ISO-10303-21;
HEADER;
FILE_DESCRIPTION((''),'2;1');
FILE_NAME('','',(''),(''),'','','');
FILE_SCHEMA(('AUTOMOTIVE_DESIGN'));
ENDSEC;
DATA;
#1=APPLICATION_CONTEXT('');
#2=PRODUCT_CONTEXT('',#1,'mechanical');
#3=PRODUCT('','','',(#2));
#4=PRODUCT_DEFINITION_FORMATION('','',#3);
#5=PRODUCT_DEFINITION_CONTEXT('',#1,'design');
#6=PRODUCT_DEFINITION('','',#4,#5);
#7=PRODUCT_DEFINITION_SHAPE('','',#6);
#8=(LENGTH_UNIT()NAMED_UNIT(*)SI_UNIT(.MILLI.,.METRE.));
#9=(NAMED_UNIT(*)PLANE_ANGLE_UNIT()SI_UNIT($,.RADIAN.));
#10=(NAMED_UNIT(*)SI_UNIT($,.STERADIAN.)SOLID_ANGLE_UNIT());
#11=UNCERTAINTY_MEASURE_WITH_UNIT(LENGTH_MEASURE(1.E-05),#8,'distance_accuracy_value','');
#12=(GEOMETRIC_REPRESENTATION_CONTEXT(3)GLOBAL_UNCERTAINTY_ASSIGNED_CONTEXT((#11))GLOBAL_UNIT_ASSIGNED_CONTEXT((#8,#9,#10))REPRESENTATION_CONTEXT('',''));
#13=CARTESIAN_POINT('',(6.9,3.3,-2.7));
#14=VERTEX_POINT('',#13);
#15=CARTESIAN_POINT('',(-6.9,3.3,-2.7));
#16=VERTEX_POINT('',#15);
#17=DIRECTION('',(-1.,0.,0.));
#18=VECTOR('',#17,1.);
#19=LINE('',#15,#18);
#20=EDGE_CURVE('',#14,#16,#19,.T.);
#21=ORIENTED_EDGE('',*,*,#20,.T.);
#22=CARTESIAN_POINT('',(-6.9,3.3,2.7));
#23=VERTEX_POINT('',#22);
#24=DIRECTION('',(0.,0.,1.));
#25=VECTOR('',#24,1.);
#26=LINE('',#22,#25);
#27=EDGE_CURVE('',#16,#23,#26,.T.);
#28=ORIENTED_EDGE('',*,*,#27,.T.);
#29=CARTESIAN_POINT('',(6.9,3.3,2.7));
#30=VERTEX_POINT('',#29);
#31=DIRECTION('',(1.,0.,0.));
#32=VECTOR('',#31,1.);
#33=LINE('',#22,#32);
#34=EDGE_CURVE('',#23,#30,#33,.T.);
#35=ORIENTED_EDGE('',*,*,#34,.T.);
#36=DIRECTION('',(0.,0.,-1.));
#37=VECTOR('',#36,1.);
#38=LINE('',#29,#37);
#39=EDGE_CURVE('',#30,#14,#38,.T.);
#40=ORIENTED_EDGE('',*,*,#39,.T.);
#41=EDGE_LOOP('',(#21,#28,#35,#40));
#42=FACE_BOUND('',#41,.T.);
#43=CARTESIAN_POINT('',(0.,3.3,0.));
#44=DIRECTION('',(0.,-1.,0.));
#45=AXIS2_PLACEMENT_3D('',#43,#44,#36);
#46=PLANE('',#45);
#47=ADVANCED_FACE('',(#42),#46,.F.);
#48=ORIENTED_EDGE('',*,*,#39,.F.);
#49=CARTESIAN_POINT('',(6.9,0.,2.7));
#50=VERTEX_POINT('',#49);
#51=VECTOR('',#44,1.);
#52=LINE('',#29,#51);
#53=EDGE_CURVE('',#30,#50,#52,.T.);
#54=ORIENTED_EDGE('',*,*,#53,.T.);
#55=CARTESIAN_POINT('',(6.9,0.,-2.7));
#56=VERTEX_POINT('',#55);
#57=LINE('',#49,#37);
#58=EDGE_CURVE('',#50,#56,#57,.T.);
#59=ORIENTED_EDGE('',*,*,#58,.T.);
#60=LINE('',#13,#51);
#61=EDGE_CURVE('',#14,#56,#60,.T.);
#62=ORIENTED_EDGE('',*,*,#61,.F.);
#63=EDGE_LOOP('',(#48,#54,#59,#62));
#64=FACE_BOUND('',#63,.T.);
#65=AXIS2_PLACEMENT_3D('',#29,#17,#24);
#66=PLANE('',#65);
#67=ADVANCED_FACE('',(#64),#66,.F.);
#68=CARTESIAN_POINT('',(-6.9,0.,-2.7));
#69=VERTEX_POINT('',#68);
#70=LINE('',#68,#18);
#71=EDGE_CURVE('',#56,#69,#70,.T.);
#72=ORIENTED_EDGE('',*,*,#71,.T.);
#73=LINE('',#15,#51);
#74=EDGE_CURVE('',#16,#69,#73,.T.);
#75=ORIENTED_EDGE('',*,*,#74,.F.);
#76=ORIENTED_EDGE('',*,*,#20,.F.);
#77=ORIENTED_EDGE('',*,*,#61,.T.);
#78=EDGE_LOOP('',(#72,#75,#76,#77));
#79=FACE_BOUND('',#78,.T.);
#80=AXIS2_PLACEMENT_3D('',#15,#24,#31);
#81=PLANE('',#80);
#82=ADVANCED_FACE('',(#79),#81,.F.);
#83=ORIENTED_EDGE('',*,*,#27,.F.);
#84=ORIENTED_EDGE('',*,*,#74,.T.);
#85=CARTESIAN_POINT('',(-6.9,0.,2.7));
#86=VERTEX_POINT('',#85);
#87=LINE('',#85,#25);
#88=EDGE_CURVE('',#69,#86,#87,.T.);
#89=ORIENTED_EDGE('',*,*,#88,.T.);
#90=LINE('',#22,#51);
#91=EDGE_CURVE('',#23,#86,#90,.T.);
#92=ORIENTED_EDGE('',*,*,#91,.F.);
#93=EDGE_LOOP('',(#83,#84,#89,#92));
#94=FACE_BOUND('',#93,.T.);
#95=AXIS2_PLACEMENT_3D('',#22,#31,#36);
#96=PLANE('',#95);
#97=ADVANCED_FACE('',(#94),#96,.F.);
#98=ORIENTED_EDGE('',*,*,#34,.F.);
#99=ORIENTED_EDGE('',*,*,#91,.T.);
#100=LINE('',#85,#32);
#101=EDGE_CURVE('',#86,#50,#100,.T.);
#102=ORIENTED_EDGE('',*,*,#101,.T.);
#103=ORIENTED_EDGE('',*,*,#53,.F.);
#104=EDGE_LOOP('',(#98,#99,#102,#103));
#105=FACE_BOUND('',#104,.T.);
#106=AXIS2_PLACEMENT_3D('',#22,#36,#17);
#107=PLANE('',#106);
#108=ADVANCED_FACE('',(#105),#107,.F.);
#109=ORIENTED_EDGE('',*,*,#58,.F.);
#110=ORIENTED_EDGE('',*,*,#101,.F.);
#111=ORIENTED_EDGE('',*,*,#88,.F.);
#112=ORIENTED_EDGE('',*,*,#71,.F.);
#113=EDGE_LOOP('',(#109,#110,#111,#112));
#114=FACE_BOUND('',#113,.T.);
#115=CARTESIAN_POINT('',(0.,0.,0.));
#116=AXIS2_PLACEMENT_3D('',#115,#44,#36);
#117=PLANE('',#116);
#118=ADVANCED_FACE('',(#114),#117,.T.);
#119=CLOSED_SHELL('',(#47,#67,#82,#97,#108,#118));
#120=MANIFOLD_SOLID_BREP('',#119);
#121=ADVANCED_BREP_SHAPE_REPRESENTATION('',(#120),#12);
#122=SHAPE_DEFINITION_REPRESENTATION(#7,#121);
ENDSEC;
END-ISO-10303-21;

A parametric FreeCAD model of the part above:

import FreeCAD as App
import Part
import Sketcher

doc = App.newDocument("Part")
body = doc.addObject("PartDesign::Body", "Body")

sketch1 = body.newObject("Sketcher::SketchObject", "Sketch")
sketch1.AttachmentSupport = (doc.getObject("XZ_Plane"), [""])
sketch1.MapMode = "FlatFace"
sketch1.addGeometry(Part.LineSegment(App.Vector(-6.9, -2.7, 0), App.Vector(-6.9, 2.7, 0)), False)
sketch1.addGeometry(Part.LineSegment(App.Vector(-6.9, 2.7, 0), App.Vector(6.9, 2.7, 0)), False)
sketch1.addGeometry(Part.LineSegment(App.Vector(6.9, 2.7, 0), App.Vector(6.9, -2.7, 0)), False)
sketch1.addGeometry(Part.LineSegment(App.Vector(6.9, -2.7, 0), App.Vector(-6.9, -2.7, 0)), False)
sketch1.addConstraint(Sketcher.Constraint("Coincident", 0, 2, 1, 1))
sketch1.addConstraint(Sketcher.Constraint("Coincident", 1, 2, 2, 1))
sketch1.addConstraint(Sketcher.Constraint("Coincident", 2, 2, 3, 1))
sketch1.addConstraint(Sketcher.Constraint("Coincident", 3, 2, 0, 1))
sketch1.addConstraint(Sketcher.Constraint("Vertical", 0))
sketch1.addConstraint(Sketcher.Constraint("Horizontal", 1))
sketch1.addConstraint(Sketcher.Constraint("Vertical", 2))
sketch1.addConstraint(Sketcher.Constraint("Horizontal", 3))
sketch1.addConstraint(Sketcher.Constraint("Symmetric", 0, 2, 2, 2, -1, 1))
sketch1.addConstraint(Sketcher.Constraint("DistanceX", 1, 1, 1, 2, 13.8))
sketch1.addConstraint(Sketcher.Constraint("DistanceY", 0, 1, 0, 2, 5.4))
pad1 = body.newObject("PartDesign::Pad", "Pad")
pad1.Profile = sketch1
pad1.Length = 3.3
pad1.Reversed = True

doc.recompute()
